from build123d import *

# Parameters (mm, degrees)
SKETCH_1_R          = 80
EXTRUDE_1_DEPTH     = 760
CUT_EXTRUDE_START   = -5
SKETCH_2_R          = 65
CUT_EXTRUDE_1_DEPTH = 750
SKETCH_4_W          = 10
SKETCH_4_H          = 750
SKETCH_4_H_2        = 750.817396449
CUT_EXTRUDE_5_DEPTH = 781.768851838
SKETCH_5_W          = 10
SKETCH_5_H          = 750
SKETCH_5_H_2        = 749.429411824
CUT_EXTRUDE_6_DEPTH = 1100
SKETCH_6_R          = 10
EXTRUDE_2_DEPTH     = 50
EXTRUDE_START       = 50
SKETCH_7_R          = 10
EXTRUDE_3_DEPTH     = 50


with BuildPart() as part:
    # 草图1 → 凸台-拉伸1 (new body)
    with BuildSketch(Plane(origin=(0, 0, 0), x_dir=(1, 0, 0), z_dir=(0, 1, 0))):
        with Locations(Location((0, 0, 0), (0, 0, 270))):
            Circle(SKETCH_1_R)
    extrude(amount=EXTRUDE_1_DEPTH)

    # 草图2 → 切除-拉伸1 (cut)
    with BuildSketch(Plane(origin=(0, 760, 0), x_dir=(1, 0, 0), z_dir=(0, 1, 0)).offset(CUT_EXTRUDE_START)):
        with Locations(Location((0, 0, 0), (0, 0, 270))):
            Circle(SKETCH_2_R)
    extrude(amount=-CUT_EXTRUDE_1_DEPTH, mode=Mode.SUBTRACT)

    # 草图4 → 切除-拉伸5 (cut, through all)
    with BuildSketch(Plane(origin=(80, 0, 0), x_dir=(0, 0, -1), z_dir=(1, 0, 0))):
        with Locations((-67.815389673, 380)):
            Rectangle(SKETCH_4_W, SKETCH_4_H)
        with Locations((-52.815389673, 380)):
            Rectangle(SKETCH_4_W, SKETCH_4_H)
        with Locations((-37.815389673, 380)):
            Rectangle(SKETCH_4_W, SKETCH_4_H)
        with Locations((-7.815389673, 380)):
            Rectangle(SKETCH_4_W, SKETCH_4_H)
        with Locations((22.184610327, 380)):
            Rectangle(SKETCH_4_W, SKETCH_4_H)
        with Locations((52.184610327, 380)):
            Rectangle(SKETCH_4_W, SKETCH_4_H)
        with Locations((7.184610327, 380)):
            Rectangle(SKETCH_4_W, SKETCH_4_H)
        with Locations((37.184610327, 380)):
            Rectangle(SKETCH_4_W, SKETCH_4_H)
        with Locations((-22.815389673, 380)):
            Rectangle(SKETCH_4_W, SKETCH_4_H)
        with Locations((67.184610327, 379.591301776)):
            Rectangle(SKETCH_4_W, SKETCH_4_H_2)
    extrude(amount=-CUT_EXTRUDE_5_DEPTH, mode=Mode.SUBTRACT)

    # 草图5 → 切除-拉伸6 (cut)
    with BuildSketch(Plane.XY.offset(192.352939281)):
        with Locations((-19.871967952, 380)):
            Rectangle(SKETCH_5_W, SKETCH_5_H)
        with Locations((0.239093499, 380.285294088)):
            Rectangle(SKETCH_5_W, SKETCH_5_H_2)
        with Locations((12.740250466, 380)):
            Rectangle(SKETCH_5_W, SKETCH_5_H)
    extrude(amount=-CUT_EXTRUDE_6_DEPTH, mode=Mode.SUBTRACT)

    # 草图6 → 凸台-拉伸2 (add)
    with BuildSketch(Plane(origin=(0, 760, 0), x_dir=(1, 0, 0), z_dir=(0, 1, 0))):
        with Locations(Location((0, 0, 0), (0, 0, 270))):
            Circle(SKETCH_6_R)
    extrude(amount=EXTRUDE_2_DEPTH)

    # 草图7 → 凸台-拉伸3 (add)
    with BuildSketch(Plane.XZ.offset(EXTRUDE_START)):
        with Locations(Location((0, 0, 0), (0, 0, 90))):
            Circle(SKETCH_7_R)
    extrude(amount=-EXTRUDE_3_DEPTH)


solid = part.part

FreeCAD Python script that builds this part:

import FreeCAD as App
import Part
import Sketcher
Q = App.Units.Quantity

doc = App.newDocument("Part")
params = doc.addObject("Spreadsheet::Sheet", "Params")
for row, (alias, value) in enumerate([
    ("sketch1_diameter", "160 mm"),
    ("pad1_length", "760 mm"),
    ("sketch2_diameter", "130 mm"),
    ("pocket1_length", "750 mm"),
    ("sketch3_width", "750 mm"),
    ("sketch3_height", "10 mm"),
    ("sketch4_width", "10 mm"),
    ("sketch4_height", "750 mm"),
    ("pocket3_length", "1100 mm"),
    ("sketch5_diameter", "20 mm"),
    ("pad2_length", "50 mm"),
    ("sketch6_diameter", "20 mm"),
    ("pad3_length", "50 mm"),
], start=1):
    params.set(f"A{row}", alias)
    params.set(f"B{row}", "=" + value)
    params.setAlias(f"B{row}", alias)

body = doc.addObject("PartDesign::Body", "Body")

# Sketch on XZ plane
sketch1 = body.newObject("Sketcher::SketchObject", "Sketch")
sketch1.AttachmentSupport = (doc.getObject("XZ_Plane"), [""])
sketch1.MapMode = "FlatFace"
sketch1.addGeometry(Part.Circle(App.Vector(0, 0, 0), App.Vector(0, 0, 1), 80), False)
sketch1.addConstraint(Sketcher.Constraint("Coincident", 0, 3, -1, 1))
sketch1.addConstraint(Sketcher.Constraint("Diameter", 0, Q("160 mm")))
sketch1.setExpression("Constraints[1]", "Params.sketch1_diameter")
pad1 = body.newObject("PartDesign::Pad", "Pad")
pad1.Profile = sketch1
pad1.setExpression("Length", "Params.pad1_length")
pad1.Reversed = True

# Sketch on XZ plane
sketch2 = body.newObject("Sketcher::SketchObject", "Sketch001")
sketch2.AttachmentSupport = (doc.getObject("XZ_Plane"), [""])
sketch2.MapMode = "FlatFace"
sketch2.AttachmentOffset = App.Placement(App.Vector(0, 0, -755), App.Rotation())
sketch2.addGeometry(Part.Circle(App.Vector(0, 0, 0), App.Vector(0, 0, 1), 65), False)
sketch2.addConstraint(Sketcher.Constraint("Coincident", 0, 3, -1, 1))
sketch2.addConstraint(Sketcher.Constraint("Diameter", 0, Q("130 mm")))
sketch2.setExpression("Constraints[1]", "Params.sketch2_diameter")
pocket1 = body.newObject("PartDesign::Pocket", "Pocket")
pocket1.Profile = sketch2
pocket1.setExpression("Length", "Params.pocket1_length")
pocket1.Reversed = True

# Sketch on YZ plane
sketch3 = body.newObject("Sketcher::SketchObject", "Sketch002")
sketch3.AttachmentSupport = (doc.getObject("YZ_Plane"), [""])
sketch3.MapMode = "FlatFace"
sketch3.AttachmentOffset = App.Placement(App.Vector(0, 0, 80), App.Rotation())
sketch3.addGeometry(Part.LineSegment(App.Vector(755, 72.81539, 0), App.Vector(5, 72.81539, 0)), False)
sketch3.addGeometry(Part.LineSegment(App.Vector(5, 72.81539, 0), App.Vector(5, 62.81539, 0)), False)
sketch3.addGeometry(Part.LineSegment(App.Vector(5, 62.81539, 0), App.Vector(755, 62.81539, 0)), False)
sketch3.addGeometry(Part.LineSegment(App.Vector(755, 62.81539, 0), App.Vector(755, 72.81539, 0)), False)
sketch3.addGeometry(Part.LineSegment(App.Vector(755, 57.81539, 0), App.Vector(5, 57.81539, 0)), False)
sketch3.addGeometry(Part.LineSegment(App.Vector(5, 57.81539, 0), App.Vector(5, 47.81539, 0)), False)
sketch3.addGeometry(Part.LineSegment(App.Vector(5, 47.81539, 0), App.Vector(755, 47.81539, 0)), False)
sketch3.addGeometry(Part.LineSegment(App.Vector(755, 47.81539, 0), App.Vector(755, 57.81539, 0)), False)
sketch3.addGeometry(Part.LineSegment(App.Vector(755, 42.81539, 0), App.Vector(5, 42.81539, 0)), False)
sketch3.addGeometry(Part.LineSegment(App.Vector(5, 42.81539, 0), App.Vector(5, 32.81539, 0)), False)
sketch3.addGeometry(Part.LineSegment(App.Vector(5, 32.81539, 0), App.Vector(755, 32.81539, 0)), False)
sketch3.addGeometry(Part.LineSegment(App.Vector(755, 32.81539, 0), App.Vector(755, 42.81539, 0)), False)
sketch3.addGeometry(Part.LineSegment(App.Vector(755, 12.81539, 0), App.Vector(5, 12.81539, 0)), False)
sketch3.addGeometry(Part.LineSegment(App.Vector(5, 12.81539, 0), App.Vector(5, 2.81539, 0)), False)
sketch3.addGeometry(Part.LineSegment(App.Vector(5, 2.81539, 0), App.Vector(755, 2.81539, 0)), False)
sketch3.addGeometry(Part.LineSegment(App.Vector(755, 2.81539, 0), App.Vector(755, 12.81539, 0)), False)
sketch3.addGeometry(Part.LineSegment(App.Vector(755, -17.18461, 0), App.Vector(5, -17.18461, 0)), False)
sketch3.addGeometry(Part.LineSegment(App.Vector(5, -17.18461, 0), App.Vector(5, -27.18461, 0)), False)
sketch3.addGeometry(Part.LineSegment(App.Vector(5, -27.18461, 0), App.Vector(755, -27.18461, 0)), False)
sketch3.addGeometry(Part.LineSegment(App.Vector(755, -27.18461, 0), App.Vector(755, -17.18461, 0)), False)
sketch3.addGeometry(Part.LineSegment(App.Vector(755, -47.18461, 0), App.Vector(5, -47.18461, 0)), False)
sketch3.addGeometry(Part.LineSegment(App.Vector(5, -47.18461, 0), App.Vector(5, -57.18461, 0)), False)
sketch3.addGeometry(Part.LineSegment(App.Vector(5, -57.18461, 0), App.Vector(755, -57.18461, 0)), False)
sketch3.addGeometry(Part.LineSegment(App.Vector(755, -57.18461, 0), App.Vector(755, -47.18461, 0)), False)
sketch3.addGeometry(Part.LineSegment(App.Vector(755, -2.18461, 0), App.Vector(5, -2.18461, 0)), False)
sketch3.addGeometry(Part.LineSegment(App.Vector(5, -2.18461, 0), App.Vector(5, -12.18461, 0)), False)
sketch3.addGeometry(Part.LineSegment(App.Vector(5, -12.18461, 0), App.Vector(755, -12.18461, 0)), False)
sketch3.addGeometry(Part.LineSegment(App.Vector(755, -12.18461, 0), App.Vector(755, -2.18461, 0)), False)
sketch3.addGeometry(Part.LineSegment(App.Vector(755, -32.18461, 0), App.Vector(5, -32.18461, 0)), False)
sketch3.addGeometry(Part.LineSegment(App.Vector(5, -32.18461, 0), App.Vector(5, -42.18461, 0)), False)
sketch3.addGeometry(Part.LineSegment(App.Vector(5, -42.18461, 0), App.Vector(755, -42.18461, 0)), False)
sketch3.addGeometry(Part.LineSegment(App.Vector(755, -42.18461, 0), App.Vector(755, -32.18461, 0)), False)
sketch3.addGeometry(Part.LineSegment(App.Vector(755, 27.81539, 0), App.Vector(5, 27.81539, 0)), False)
sketch3.addGeometry(Part.LineSegment(App.Vector(5, 27.81539, 0), App.Vector(5, 17.81539, 0)), False)
sketch3.addGeometry(Part.LineSegment(App.Vector(5, 17.81539, 0), App.Vector(755, 17.81539, 0)), False)
sketch3.addGeometry(Part.LineSegment(App.Vector(755, 17.81539, 0), App.Vector(755, 27.81539, 0)), False)
sketch3.addGeometry(Part.LineSegment(App.Vector(755, -62.18461, 0), App.Vector(4.182604, -62.18461, 0)), False)
sketch3.addGeometry(Part.LineSegment(App.Vector(4.182604, -62.18461, 0), App.Vector(4.182604, -72.18461, 0)), False)
sketch3.addGeometry(Part.LineSegment(App.Vector(4.182604, -72.18461, 0), App.Vector(755, -72.18461, 0)), False)
sketch3.addGeometry(Part.LineSegment(App.Vector(755, -72.18461, 0), App.Vector(755, -62.18461, 0)), False)
sketch3.addConstraint(Sketcher.Constraint("Coincident", 0, 2, 1, 1))
sketch3.addConstraint(Sketcher.Constraint("Coincident", 1, 2, 2, 1))
sketch3.addConstraint(Sketcher.Constraint("Coincident", 2, 2, 3, 1))
sketch3.addConstraint(Sketcher.Constraint("Coincident", 3, 2, 0, 1))
sketch3.addConstraint(Sketcher.Constraint("Coincident", 4, 2, 5, 1))
sketch3.addConstraint(Sketcher.Constraint("Coincident", 5, 2, 6, 1))
sketch3.addConstraint(Sketcher.Constraint("Coincident", 6, 2, 7, 1))
sketch3.addConstraint(Sketcher.Constraint("Coincident", 7, 2, 4, 1))
sketch3.addConstraint(Sketcher.Constraint("Coincident", 8, 2, 9, 1))
sketch3.addConstraint(Sketcher.Constraint("Coincident", 9, 2, 10, 1))
sketch3.addConstraint(Sketcher.Constraint("Coincident", 10, 2, 11, 1))
sketch3.addConstraint(Sketcher.Constraint("Coincident", 11, 2, 8, 1))
sketch3.addConstraint(Sketcher.Constraint("Coincident", 12, 2, 13, 1))
sketch3.addConstraint(Sketcher.Constraint("Coincident", 13, 2, 14, 1))
sketch3.addConstraint(Sketcher.Constraint("Coincident", 14, 2, 15, 1))
sketch3.addConstraint(Sketcher.Constraint("Coincident", 15, 2, 12, 1))
sketch3.addConstraint(Sketcher.Constraint("Coincident", 16, 2, 17, 1))
sketch3.addConstraint(Sketcher.Constraint("Coincident", 17, 2, 18, 1))
sketch3.addConstraint(Sketcher.Constraint("Coincident", 18, 2, 19, 1))
sketch3.addConstraint(Sketcher.Constraint("Coincident", 19, 2, 16, 1))
sketch3.addConstraint(Sketcher.Constraint("Coincident", 20, 2, 21, 1))
sketch3.addConstraint(Sketcher.Constraint("Coincident", 21, 2, 22, 1))
sketch3.addConstraint(Sketcher.Constraint("Coincident", 22, 2, 23, 1))
sketch3.addConstraint(Sketcher.Constraint("Coincident", 23, 2, 20, 1))
sketch3.addConstraint(Sketcher.Constraint("Coincident", 24, 2, 25, 1))
sketch3.addConstraint(Sketcher.Constraint("Coincident", 25, 2, 26, 1))
sketch3.addConstraint(Sketcher.Constraint("Coincident", 26, 2, 27, 1))
sketch3.addConstraint(Sketcher.Constraint("Coincident", 27, 2, 24, 1))
sketch3.addConstraint(Sketcher.Constraint("Coincident", 28, 2, 29, 1))
sketch3.addConstraint(Sketcher.Constraint("Coincident", 29, 2, 30, 1))
sketch3.addConstraint(Sketcher.Constraint("Coincident", 30, 2, 31, 1))
sketch3.addConstraint(Sketcher.Constraint("Coincident", 31, 2, 28, 1))
sketch3.addConstraint(Sketcher.Constraint("Coincident", 32, 2, 33, 1))
sketch3.addConstraint(Sketcher.Constraint("Coincident", 33, 2, 34, 1))
sketch3.addConstraint(Sketcher.Constraint("Coincident", 34, 2, 35, 1))
sketch3.addConstraint(Sketcher.Constraint("Coincident", 35, 2, 32, 1))
sketch3.addConstraint(Sketcher.Constraint("Coincident", 36, 2, 37, 1))
sketch3.addConstraint(Sketcher.Constraint("Coincident", 37, 2, 38, 1))
sketch3.addConstraint(Sketcher.Constraint("Coincident", 38, 2, 39, 1))
sketch3.addConstraint(Sketcher.Constraint("Coincident", 39, 2, 36, 1))
sketch3.addConstraint(Sketcher.Constraint("Horizontal", 0))
sketch3.addConstraint(Sketcher.Constraint("Vertical", 1))
sketch3.addConstraint(Sketcher.Constraint("Horizontal", 2))
sketch3.addConstraint(Sketcher.Constraint("Vertical", 3))
sketch3.addConstraint(Sketcher.Constraint("Horizontal", 4))
sketch3.addConstraint(Sketcher.Constraint("Vertical", 5))
sketch3.addConstraint(Sketcher.Constraint("Horizontal", 6))
sketch3.addConstraint(Sketcher.Constraint("Vertical", 7))
sketch3.addConstraint(Sketcher.Constraint("Horizontal", 8))
sketch3.addConstraint(Sketcher.Constraint("Vertical", 9))
sketch3.addConstraint(Sketcher.Constraint("Horizontal", 10))
sketch3.addConstraint(Sketcher.Constraint("Vertical", 11))
sketch3.addConstraint(Sketcher.Constraint("Horizontal", 12))
sketch3.addConstraint(Sketcher.Constraint("Vertical", 13))
sketch3.addConstraint(Sketcher.Constraint("Horizontal", 14))
sketch3.addConstraint(Sketcher.Constraint("Vertical", 15))
sketch3.addConstraint(Sketcher.Constraint("Horizontal", 16))
sketch3.addConstraint(Sketcher.Constraint("Vertical", 17))
sketch3.addConstraint(Sketcher.Constraint("Horizontal", 18))
sketch3.addConstraint(Sketcher.Constraint("Vertical", 19))
sketch3.addConstraint(Sketcher.Constraint("Horizontal", 20))
sketch3.addConstraint(Sketcher.Constraint("Vertical", 21))
sketch3.addConstraint(Sketcher.Constraint("Horizontal", 22))
sketch3.addConstraint(Sketcher.Constraint("Vertical", 23))
sketch3.addConstraint(Sketcher.Constraint("Horizontal", 24))
sketch3.addConstraint(Sketcher.Constraint("Vertical", 25))
sketch3.addConstraint(Sketcher.Constraint("Horizontal", 26))
sketch3.addConstraint(Sketcher.Constraint("Vertical", 27))
sketch3.addConstraint(Sketcher.Constraint("Horizontal", 28))
sketch3.addConstraint(Sketcher.Constraint("Vertical", 29))
sketch3.addConstraint(Sketcher.Constraint("Horizontal", 30))
sketch3.addConstraint(Sketcher.Constraint("Vertical", 31))
sketch3.addConstraint(Sketcher.Constraint("Horizontal", 32))
sketch3.addConstraint(Sketcher.Constraint("Vertical", 33))
sketch3.addConstraint(Sketcher.Constraint("Horizontal", 34))
sketch3.addConstraint(Sketcher.Constraint("Vertical", 35))
sketch3.addConstraint(Sketcher.Constraint("Horizontal", 36))
sketch3.addConstraint(Sketcher.Constraint("Vertical", 37))
sketch3.addConstraint(Sketcher.Constraint("Horizontal", 38))
sketch3.addConstraint(Sketcher.Constraint("Vertical", 39))
sketch3.addConstraint(Sketcher.Constraint("Vertical", 1, 2, 4, 2))
sketch3.addConstraint(Sketcher.Constraint("Vertical", 3, 2, 6, 2))
sketch3.addConstraint(Sketcher.Constraint("Vertical", 5, 2, 8, 2))
sketch3.addConstraint(Sketcher.Constraint("Vertical", 7, 2, 10, 2))
sketch3.addConstraint(Sketcher.Constraint("Vertical", 9, 2, 12, 2))
sketch3.addConstraint(Sketcher.Constraint("Vertical", 11, 2, 14, 2))
sketch3.addConstraint(Sketcher.Constraint("Vertical", 13, 2, 16, 2))
sketch3.addConstraint(Sketcher.Constraint("Vertical", 15, 2, 18, 2))
sketch3.addConstraint(Sketcher.Constraint("Vertical", 17, 2, 20, 2))
sketch3.addConstraint(Sketcher.Constraint("Vertical", 19, 2, 22, 2))
sketch3.addConstraint(Sketcher.Constraint("Vertical", 21, 2, 24, 2))
sketch3.addConstraint(Sketcher.Constraint("Vertical", 23, 2, 26, 2))
sketch3.addConstraint(Sketcher.Constraint("Vertical", 25, 2, 28, 2))
sketch3.addConstraint(Sketcher.Constraint("Vertical", 27, 2, 30, 2))
sketch3.addConstraint(Sketcher.Constraint("Vertical", 29, 2, 32, 2))
sketch3.addConstraint(Sketcher.Constraint("Vertical", 31, 2, 34, 2))
sketch3.addConstraint(Sketcher.Constraint("Vertical", 35, 2, 38, 2))
sketch3.addConstraint(Sketcher.Constraint("Equal", 3, 5))
sketch3.addConstraint(Sketcher.Constraint("Equal", 7, 9))
sketch3.addConstraint(Sketcher.Constraint("Equal", 11, 13))
sketch3.addConstraint(Sketcher.Constraint("Equal", 15, 17))
sketch3.addConstraint(Sketcher.Constraint("Equal", 19, 21))
sketch3.addConstraint(Sketcher.Constraint("Equal", 23, 25))
sketch3.addConstraint(Sketcher.Constraint("Equal", 27, 29))
sketch3.addConstraint(Sketcher.Constraint("Equal", 31, 33))
sketch3.addConstraint(Sketcher.Constraint("Equal", 35, 37))
sketch3.addConstraint(Sketcher.Constraint("DistanceX", 0, 2, 0, 1, Q("750 mm")))
sketch3.addConstraint(Sketcher.Constraint("DistanceY", 1, 2, 1, 1, Q("10 mm")))
sketch3.addConstraint(Sketcher.Constraint("DistanceX", -1, 1, 0, 2, Q("5 mm")))
sketch3.addConstraint(Sketcher.Constraint("DistanceY", 4, 2, 1, 2, Q("5 mm")))
sketch3.addConstraint(Sketcher.Constraint("DistanceY", 8, 2, 5, 2, Q("5 mm")))
sketch3.addConstraint(Sketcher.Constraint("DistanceY", 12, 2, 9, 2, Q("20 mm")))
sketch3.addConstraint(Sketcher.Constraint("DistanceY", 16, 2, 13, 2, Q("20 mm")))
sketch3.addConstraint(Sketcher.Constraint("DistanceY", 20, 2, 17, 2, Q("20 mm")))
sketch3.addConstraint(Sketcher.Constraint("DistanceY", 24, 2, 13, 2, Q("5 mm")))
sketch3.addConstraint(Sketcher.Constraint("DistanceY", 28, 2, 17, 2, Q("5 mm")))
sketch3.addConstraint(Sketcher.Constraint("DistanceY", 32, 2, 9, 2, Q("5 mm")))
sketch3.addConstraint(Sketcher.Constraint("DistanceY", 36, 2, 21, 2, Q("5 mm")))
sketch3.addConstraint(Sketcher.Constraint("DistanceX", 36, 2, 36, 1, Q("750.817396 mm")))
sketch3.addConstraint(Sketcher.Constraint("DistanceY", -1, 1, 0, 2, Q("72.81539 mm")))
sketch3.setExpression("Constraints[106]", "Params.sketch3_width")
sketch3.setExpression("Constraints[107]", "Params.sketch3_height")
pocket2 = body.newObject("PartDesign::Pocket", "Pocket001")
pocket2.Profile = sketch3
pocket2.Type = "ThroughAll"

# Sketch on XY plane
sketch4 = body.newObject("Sketcher::SketchObject", "Sketch003")
sketch4.AttachmentSupport = (doc.getObject("XY_Plane"), [""])
sketch4.MapMode = "FlatFace"
sketch4.AttachmentOffset = App.Placement(App.Vector(0, 0, 192.352939), App.Rotation())
sketch4.addGeometry(Part.LineSegment(App.Vector(-24.871968, 755, 0), App.Vector(-24.871968, 5, 0)), False)
sketch4.addGeometry(Part.LineSegment(App.Vector(-24.871968, 5, 0), App.Vector(-14.871968, 5, 0)), False)
sketch4.addGeometry(Part.LineSegment(App.Vector(-14.871968, 5, 0), App.Vector(-14.871968, 755, 0)), False)
sketch4.addGeometry(Part.LineSegment(App.Vector(-14.871968, 755, 0), App.Vector(-24.871968, 755, 0)), False)
sketch4.addGeometry(Part.LineSegment(App.Vector(-4.760907, 755, 0), App.Vector(-4.760907, 5.570588, 0)), False)
sketch4.addGeometry(Part.LineSegment(App.Vector(-4.760907, 5.570588, 0), App.Vector(5.239093, 5.570588, 0)), False)
sketch4.addGeometry(Part.LineSegment(App.Vector(5.239093, 5.570588, 0), App.Vector(5.239093, 755, 0)), False)
sketch4.addGeometry(Part.LineSegment(App.Vector(5.239093, 755, 0), App.Vector(-4.760907, 755, 0)), False)
sketch4.addGeometry(Part.LineSegment(App.Vector(7.74025, 755, 0), App.Vector(7.74025, 5, 0)), False)
sketch4.addGeometry(Part.LineSegment(App.Vector(7.74025, 5, 0), App.Vector(17.74025, 5, 0)), False)
sketch4.addGeometry(Part.LineSegment(App.Vector(17.74025, 5, 0), App.Vector(17.74025, 755, 0)), False)
sketch4.addGeometry(Part.LineSegment(App.Vector(17.74025, 755, 0), App.Vector(7.74025, 755, 0)), False)
sketch4.addConstraint(Sketcher.Constraint("Coincident", 0, 2, 1, 1))
sketch4.addConstraint(Sketcher.Constraint("Coincident", 1, 2, 2, 1))
sketch4.addConstraint(Sketcher.Constraint("Coincident", 2, 2, 3, 1))
sketch4.addConstraint(Sketcher.Constraint("Coincident", 3, 2, 0, 1))
sketch4.addConstraint(Sketcher.Constraint("Coincident", 4, 2, 5, 1))
sketch4.addConstraint(Sketcher.Constraint("Coincident", 5, 2, 6, 1))
sketch4.addConstraint(Sketcher.Constraint("Coincident", 6, 2, 7, 1))
sketch4.addConstraint(Sketcher.Constraint("Coincident", 7, 2, 4, 1))
sketch4.addConstraint(Sketcher.Constraint("Coincident", 8, 2, 9, 1))
sketch4.addConstraint(Sketcher.Constraint("Coincident", 9, 2, 10, 1))
sketch4.addConstraint(Sketcher.Constraint("Coincident", 10, 2, 11, 1))
sketch4.addConstraint(Sketcher.Constraint("Coincident", 11, 2, 8, 1))
sketch4.addConstraint(Sketcher.Constraint("Vertical", 0))
sketch4.addConstraint(Sketcher.Constraint("Horizontal", 1))
sketch4.addConstraint(Sketcher.Constraint("Vertical", 2))
sketch4.addConstraint(Sketcher.Constraint("Horizontal", 3))
sketch4.addConstraint(Sketcher.Constraint("Vertical", 4))
sketch4.addConstraint(Sketcher.Constraint("Horizontal", 5))
sketch4.addConstraint(Sketcher.Constraint("Vertical", 6))
sketch4.addConstraint(Sketcher.Constraint("Horizontal", 7))
sketch4.addConstraint(Sketcher.Constraint("Vertical", 8))
sketch4.addConstraint(Sketcher.Constraint("Horizontal", 9))
sketch4.addConstraint(Sketcher.Constraint("Vertical", 10))
sketch4.addConstraint(Sketcher.Constraint("Horizontal", 11))
sketch4.addConstraint(Sketcher.Constraint("Horizontal", 3, 2, 6, 2))
sketch4.addConstraint(Sketcher.Constraint("Horizontal", 1, 2, 8, 2))
sketch4.addConstraint(Sketcher.Constraint("Horizontal", 7, 2, 10, 2))
sketch4.addConstraint(Sketcher.Constraint("Equal", 3, 5))
sketch4.addConstraint(Sketcher.Constraint("Equal", 7, 9))
sketch4.addConstraint(Sketcher.Constraint("DistanceX", 1, 1, 1, 2, Q("10 mm")))
sketch4.addConstraint(Sketcher.Constraint("DistanceY", 0, 2, 0, 1, Q("750 mm")))
sketch4.addConstraint(Sketcher.Constraint("DistanceY", -1, 1, 0, 2, Q("5 mm")))
sketch4.addConstraint(Sketcher.Constraint("DistanceY", 4, 2, 4, 1, Q("749.429412 mm")))
sketch4.addConstraint(Sketcher.Constraint("DistanceX", -1, 1, 8, 2, Q("7.74025 mm")))
sketch4.addConstraint(Sketcher.Constraint("DistanceX", 1, 2, 4, 2, Q("10.111061 mm")))
sketch4.addConstraint(Sketcher.Constraint("DistanceX", 1, 2, 8, 2, Q("22.612218 mm")))
sketch4.setExpression("Constraints[29]", "Params.sketch4_width")
sketch4.setExpression("Constraints[30]", "Params.sketch4_height")
pocket3 = body.newObject("PartDesign::Pocket", "Pocket002")
pocket3.Profile = sketch4
pocket3.setExpression("Length", "Params.pocket3_length")

# Sketch on XZ plane
sketch5 = body.newObject("Sketcher::SketchObject", "Sketch004")
sketch5.AttachmentSupport = (doc.getObject("XZ_Plane"), [""])
sketch5.MapMode = "FlatFace"
sketch5.AttachmentOffset = App.Placement(App.Vector(0, 0, -760), App.Rotation())
sketch5.addGeometry(Part.Circle(App.Vector(0, 0, 0), App.Vector(0, 0, 1), 10), False)
sketch5.addConstraint(Sketcher.Constraint("Coincident", 0, 3, -1, 1))
sketch5.addConstraint(Sketcher.Constraint("Diameter", 0, Q("20 mm")))
sketch5.setExpression("Constraints[1]", "Params.sketch5_diameter")
pad2 = body.newObject("PartDesign::Pad", "Pad001")
pad2.Profile = sketch5
pad2.setExpression("Length", "Params.pad2_length")
pad2.Reversed = True

# Sketch on XZ plane
sketch6 = body.newObject("Sketcher::SketchObject", "Sketch005")
sketch6.AttachmentSupport = (doc.getObject("XZ_Plane"), [""])
sketch6.MapMode = "FlatFace"
sketch6.AttachmentOffset = App.Placement(App.Vector(0, 0, 50), App.Rotation())
sketch6.addGeometry(Part.Circle(App.Vector(0, 0, 0), App.Vector(0, 0, 1), 10), False)
sketch6.addConstraint(Sketcher.Constraint("Coincident", 0, 3, -1, 1))
sketch6.addConstraint(Sketcher.Constraint("Diameter", 0, Q("20 mm")))
sketch6.setExpression("Constraints[1]", "Params.sketch6_diameter")
pad3 = body.newObject("PartDesign::Pad", "Pad002")
pad3.Profile = sketch6
pad3.setExpression("Length", "Params.pad3_length")
pad3.Reversed = True

doc.recompute()
